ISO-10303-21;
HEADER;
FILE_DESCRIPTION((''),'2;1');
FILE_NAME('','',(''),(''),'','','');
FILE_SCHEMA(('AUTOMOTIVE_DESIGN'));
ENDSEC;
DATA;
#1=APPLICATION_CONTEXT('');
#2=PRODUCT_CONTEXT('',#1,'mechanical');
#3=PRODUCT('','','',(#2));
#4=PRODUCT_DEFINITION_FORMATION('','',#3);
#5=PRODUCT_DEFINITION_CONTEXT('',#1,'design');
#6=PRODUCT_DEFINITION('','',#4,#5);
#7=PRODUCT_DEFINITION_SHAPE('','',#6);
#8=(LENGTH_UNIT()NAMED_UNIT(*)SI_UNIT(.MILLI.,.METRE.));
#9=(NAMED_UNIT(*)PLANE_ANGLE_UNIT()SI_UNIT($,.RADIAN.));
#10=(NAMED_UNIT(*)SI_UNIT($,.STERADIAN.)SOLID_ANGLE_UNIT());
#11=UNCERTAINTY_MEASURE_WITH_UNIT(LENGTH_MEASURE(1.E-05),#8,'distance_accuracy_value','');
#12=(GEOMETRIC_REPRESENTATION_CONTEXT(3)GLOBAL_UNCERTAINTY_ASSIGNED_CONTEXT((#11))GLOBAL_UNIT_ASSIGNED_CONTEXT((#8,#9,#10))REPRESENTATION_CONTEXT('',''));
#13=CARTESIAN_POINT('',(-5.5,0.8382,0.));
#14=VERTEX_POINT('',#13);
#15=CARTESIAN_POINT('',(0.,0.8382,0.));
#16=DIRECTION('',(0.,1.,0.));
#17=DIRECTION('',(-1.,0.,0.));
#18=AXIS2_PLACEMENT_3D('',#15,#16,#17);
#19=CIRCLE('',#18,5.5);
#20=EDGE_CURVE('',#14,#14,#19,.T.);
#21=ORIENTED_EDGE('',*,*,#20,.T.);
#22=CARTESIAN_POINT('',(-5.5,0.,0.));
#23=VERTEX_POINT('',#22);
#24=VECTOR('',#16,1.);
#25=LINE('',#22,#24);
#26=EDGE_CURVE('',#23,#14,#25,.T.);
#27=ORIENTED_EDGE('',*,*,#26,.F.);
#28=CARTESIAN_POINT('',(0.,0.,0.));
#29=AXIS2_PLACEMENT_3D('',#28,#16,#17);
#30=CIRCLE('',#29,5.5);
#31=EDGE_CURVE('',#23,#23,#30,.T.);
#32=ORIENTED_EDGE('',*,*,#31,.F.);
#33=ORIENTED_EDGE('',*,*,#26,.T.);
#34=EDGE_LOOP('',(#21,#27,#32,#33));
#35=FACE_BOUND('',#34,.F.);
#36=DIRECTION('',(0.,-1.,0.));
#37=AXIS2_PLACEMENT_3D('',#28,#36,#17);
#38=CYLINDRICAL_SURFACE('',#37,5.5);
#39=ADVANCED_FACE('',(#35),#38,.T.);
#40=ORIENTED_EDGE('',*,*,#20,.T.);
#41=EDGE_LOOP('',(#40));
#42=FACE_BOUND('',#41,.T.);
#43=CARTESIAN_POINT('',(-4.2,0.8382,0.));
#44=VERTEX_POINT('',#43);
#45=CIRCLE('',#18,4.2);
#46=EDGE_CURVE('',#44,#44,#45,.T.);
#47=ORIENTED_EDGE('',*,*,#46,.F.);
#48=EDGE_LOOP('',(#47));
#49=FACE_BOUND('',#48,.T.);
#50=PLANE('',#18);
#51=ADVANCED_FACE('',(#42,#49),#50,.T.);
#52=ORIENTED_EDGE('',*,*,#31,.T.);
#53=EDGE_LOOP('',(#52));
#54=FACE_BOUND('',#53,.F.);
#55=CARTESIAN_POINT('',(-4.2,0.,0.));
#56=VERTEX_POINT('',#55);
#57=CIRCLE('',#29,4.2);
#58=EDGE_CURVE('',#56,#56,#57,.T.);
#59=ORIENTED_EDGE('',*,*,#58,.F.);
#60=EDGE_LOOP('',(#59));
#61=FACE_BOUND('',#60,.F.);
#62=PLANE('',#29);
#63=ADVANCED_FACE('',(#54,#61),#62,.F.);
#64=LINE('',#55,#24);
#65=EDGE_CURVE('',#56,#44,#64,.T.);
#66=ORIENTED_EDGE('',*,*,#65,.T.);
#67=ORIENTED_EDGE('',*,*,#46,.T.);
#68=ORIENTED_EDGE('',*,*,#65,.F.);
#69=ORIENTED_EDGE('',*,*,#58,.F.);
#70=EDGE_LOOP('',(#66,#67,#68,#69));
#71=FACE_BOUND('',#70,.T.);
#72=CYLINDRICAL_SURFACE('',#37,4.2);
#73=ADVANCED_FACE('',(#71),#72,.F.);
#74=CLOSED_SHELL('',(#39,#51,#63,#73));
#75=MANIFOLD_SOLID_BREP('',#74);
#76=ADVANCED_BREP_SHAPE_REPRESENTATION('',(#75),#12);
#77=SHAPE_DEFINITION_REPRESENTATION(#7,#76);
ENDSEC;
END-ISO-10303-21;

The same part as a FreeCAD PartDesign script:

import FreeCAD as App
import Part
import Sketcher

V = App.Vector
Q = App.Units.Quantity

doc = App.newDocument("Part")
params = doc.addObject("Spreadsheet::Sheet", "Params")
for row, (alias, value) in enumerate([
    ("sketch1_diameter", "11 mm"),
    ("sketch1_diameter2", "8.4 mm"),
    ("pad1_length", "0.8382 mm"),
], start=1):
    params.set(f"A{row}", alias)
    params.set(f"B{row}", "=" + value)
    params.setAlias(f"B{row}", alias)

body = doc.addObject("PartDesign::Body", "Body")

# Sketch on XZ plane
sketch1 = doc.addObject("Sketcher::SketchObject", "Sketch")
body.addObject(sketch1)
sketch1.AttachmentSupport = (doc.XZ_Plane, [""])
sketch1.MapMode = "FlatFace"
sketch1.addGeometry(Part.Circle(V(0, 0, 0), V(0, 0, 1), 5.5), False)
sketch1.addGeometry(Part.Circle(V(0, 0, 0), V(0, 0, 1), 4.2), False)
sketch1.addConstraint(Sketcher.Constraint("Coincident", 0, 3, -1, 1))
sketch1.addConstraint(Sketcher.Constraint("Coincident", 1, 3, -1, 1))
sketch1.addConstraint(Sketcher.Constraint("Diameter", 0, Q("11 mm")))
sketch1.addConstraint(Sketcher.Constraint("Diameter", 1, Q("8.4 mm")))
sketch1.setExpression("Constraints[2]", "Params.sketch1_diameter")
sketch1.setExpression("Constraints[3]", "Params.sketch1_diameter2")
pad1 = doc.addObject("PartDesign::Pad", "Pad")
body.addObject(pad1)
pad1.Profile = sketch1
pad1.setExpression("Length", "Params.pad1_length")
pad1.Reversed = True

doc.recompute()
